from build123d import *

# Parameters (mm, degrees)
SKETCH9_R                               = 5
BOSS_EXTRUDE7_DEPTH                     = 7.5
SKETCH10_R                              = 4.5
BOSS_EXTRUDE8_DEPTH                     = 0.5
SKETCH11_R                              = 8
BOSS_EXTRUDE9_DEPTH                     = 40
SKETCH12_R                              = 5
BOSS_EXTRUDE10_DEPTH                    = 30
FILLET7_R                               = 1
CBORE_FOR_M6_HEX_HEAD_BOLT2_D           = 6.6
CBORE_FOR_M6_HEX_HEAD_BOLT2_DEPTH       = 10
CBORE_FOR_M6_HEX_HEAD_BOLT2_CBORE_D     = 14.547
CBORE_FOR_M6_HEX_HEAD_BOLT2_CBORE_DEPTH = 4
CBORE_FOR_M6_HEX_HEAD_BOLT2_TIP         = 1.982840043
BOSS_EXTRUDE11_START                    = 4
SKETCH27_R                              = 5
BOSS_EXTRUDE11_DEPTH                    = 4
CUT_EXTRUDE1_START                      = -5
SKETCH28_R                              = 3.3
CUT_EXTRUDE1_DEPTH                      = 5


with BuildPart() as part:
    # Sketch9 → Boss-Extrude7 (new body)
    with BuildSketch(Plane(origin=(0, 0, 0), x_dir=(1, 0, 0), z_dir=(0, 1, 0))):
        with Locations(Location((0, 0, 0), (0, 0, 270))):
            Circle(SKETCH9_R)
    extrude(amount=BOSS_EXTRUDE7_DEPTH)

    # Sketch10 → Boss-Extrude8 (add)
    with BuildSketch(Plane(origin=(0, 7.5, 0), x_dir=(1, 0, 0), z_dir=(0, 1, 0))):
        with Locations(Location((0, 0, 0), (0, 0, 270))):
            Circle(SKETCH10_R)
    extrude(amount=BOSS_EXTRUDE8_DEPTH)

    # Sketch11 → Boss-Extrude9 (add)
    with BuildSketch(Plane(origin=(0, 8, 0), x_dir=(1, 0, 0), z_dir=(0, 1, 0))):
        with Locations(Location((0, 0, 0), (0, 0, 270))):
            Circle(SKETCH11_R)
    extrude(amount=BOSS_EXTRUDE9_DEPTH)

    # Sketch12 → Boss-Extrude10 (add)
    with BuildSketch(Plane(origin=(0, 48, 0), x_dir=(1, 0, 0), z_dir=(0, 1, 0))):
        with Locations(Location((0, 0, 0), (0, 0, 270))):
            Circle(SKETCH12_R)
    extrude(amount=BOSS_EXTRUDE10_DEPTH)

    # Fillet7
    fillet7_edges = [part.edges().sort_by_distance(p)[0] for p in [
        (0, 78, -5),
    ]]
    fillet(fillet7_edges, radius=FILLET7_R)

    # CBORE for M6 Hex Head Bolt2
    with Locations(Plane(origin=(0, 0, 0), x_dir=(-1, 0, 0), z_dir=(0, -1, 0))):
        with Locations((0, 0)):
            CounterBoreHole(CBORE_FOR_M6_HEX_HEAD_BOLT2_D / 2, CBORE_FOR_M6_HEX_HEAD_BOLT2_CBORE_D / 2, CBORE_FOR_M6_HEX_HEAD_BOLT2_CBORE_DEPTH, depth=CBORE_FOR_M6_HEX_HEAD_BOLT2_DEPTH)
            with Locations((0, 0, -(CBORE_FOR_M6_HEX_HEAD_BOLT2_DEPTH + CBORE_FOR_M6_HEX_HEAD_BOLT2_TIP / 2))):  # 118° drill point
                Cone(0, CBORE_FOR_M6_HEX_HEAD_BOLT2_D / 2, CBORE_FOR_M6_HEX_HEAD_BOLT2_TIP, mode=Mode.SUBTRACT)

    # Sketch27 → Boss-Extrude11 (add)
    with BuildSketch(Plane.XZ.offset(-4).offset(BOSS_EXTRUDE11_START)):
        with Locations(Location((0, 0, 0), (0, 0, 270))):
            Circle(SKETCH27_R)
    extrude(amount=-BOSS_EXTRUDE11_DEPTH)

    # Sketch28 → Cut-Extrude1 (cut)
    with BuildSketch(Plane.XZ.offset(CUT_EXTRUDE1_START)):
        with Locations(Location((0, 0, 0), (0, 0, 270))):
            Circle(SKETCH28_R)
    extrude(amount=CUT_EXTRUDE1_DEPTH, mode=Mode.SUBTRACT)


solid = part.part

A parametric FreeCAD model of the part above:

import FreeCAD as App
import Part
import Sketcher


def edges_at(feature, points):
    """Names of the edges that pass closest to the given points."""
    edges = feature.Shape.Edges
    near = lambda p: min(range(len(edges)), key=lambda i: edges[i].distToShape(Part.Vertex(*p))[0])
    return sorted({f"Edge{near(p) + 1}" for p in points})

doc = App.newDocument("Part")
params = doc.addObject("Spreadsheet::Sheet", "Params")
for row, (alias, value) in enumerate([
    ("sketch1_diameter", "10 mm"),
    ("pad1_length", "7.5 mm"),
    ("sketch2_diameter", "9 mm"),
    ("pad2_length", "0.5 mm"),
    ("sketch3_diameter", "16 mm"),
    ("pad3_length", "40 mm"),
    ("sketch4_diameter", "10 mm"),
    ("pad4_length", "30 mm"),
    ("fillet_radius", "1 mm"),
    ("sketch5_diameter", "6.6 mm"),
    ("hole_diameter", "6.6 mm"),
    ("hole_depth", "10 mm"),
    ("hole_cbore_diameter", "14.547 mm"),
    ("hole_cbore_depth", "4 mm"),
    ("sketch6_diameter", "10 mm"),
    ("pad5_length", "4 mm"),
    ("sketch7_diameter", "6.6 mm"),
    ("pocket1_length", "5 mm"),
], start=1):
    params.set(f"A{row}", alias)
    params.set(f"B{row}", "=" + value)
    params.setAlias(f"B{row}", alias)

body = doc.addObject("PartDesign::Body", "Body")

# Sketch on XZ plane
sketch1 = doc.addObject("Sketcher::SketchObject", "Sketch")
body.addObject(sketch1)
sketch1.AttachmentSupport = (doc.XZ_Plane, [""])
sketch1.MapMode = "FlatFace"
sketch1.addGeometry(Part.Circle(App.Vector(0, 0, 0), App.Vector(0, 0, 1), 5), False)
sketch1.addConstraint([
    Sketcher.Constraint("Coincident", 0, 3, -1, 1),
    Sketcher.Constraint("Diameter", 0, 10.0),
])
sketch1.setExpression("Constraints[1]", "Params.sketch1_diameter")
pad1 = doc.addObject("PartDesign::Pad", "Pad")
body.addObject(pad1)
pad1.Profile = sketch1
pad1.setExpression("Length", "Params.pad1_length")
pad1.Reversed = True

# Sketch on XZ plane
sketch2 = doc.addObject("Sketcher::SketchObject", "Sketch001")
body.addObject(sketch2)
sketch2.AttachmentSupport = (doc.XZ_Plane, [""])
sketch2.MapMode = "FlatFace"
sketch2.AttachmentOffset = App.Placement(App.Vector(0, 0, -7.5), App.Rotation())
sketch2.addGeometry(Part.Circle(App.Vector(0, 0, 0), App.Vector(0, 0, 1), 4.5), False)
sketch2.addConstraint([
    Sketcher.Constraint("Coincident", 0, 3, -1, 1),
    Sketcher.Constraint("Diameter", 0, 9.0),
])
sketch2.setExpression("Constraints[1]", "Params.sketch2_diameter")
pad2 = doc.addObject("PartDesign::Pad", "Pad001")
body.addObject(pad2)
pad2.Profile = sketch2
pad2.setExpression("Length", "Params.pad2_length")
pad2.Reversed = True

# Sketch on XZ plane
sketch3 = doc.addObject("Sketcher::SketchObject", "Sketch002")
body.addObject(sketch3)
sketch3.AttachmentSupport = (doc.XZ_Plane, [""])
sketch3.MapMode = "FlatFace"
sketch3.AttachmentOffset = App.Placement(App.Vector(0, 0, -8), App.Rotation())
sketch3.addGeometry(Part.Circle(App.Vector(0, 0, 0), App.Vector(0, 0, 1), 8), False)
sketch3.addConstraint([
    Sketcher.Constraint("Coincident", 0, 3, -1, 1),
    Sketcher.Constraint("Diameter", 0, 16.0),
])
sketch3.setExpression("Constraints[1]", "Params.sketch3_diameter")
pad3 = doc.addObject("PartDesign::Pad", "Pad002")
body.addObject(pad3)
pad3.Profile = sketch3
pad3.setExpression("Length", "Params.pad3_length")
pad3.Reversed = True

# Sketch on XZ plane
sketch4 = doc.addObject("Sketcher::SketchObject", "Sketch003")
body.addObject(sketch4)
sketch4.AttachmentSupport = (doc.XZ_Plane, [""])
sketch4.MapMode = "FlatFace"
sketch4.AttachmentOffset = App.Placement(App.Vector(0, 0, -48), App.Rotation())
sketch4.addGeometry(Part.Circle(App.Vector(0, 0, 0), App.Vector(0, 0, 1), 5), False)
sketch4.addConstraint([
    Sketcher.Constraint("Coincident", 0, 3, -1, 1),
    Sketcher.Constraint("Diameter", 0, 10.0),
])
sketch4.setExpression("Constraints[1]", "Params.sketch4_diameter")
pad4 = doc.addObject("PartDesign::Pad", "Pad003")
body.addObject(pad4)
pad4.Profile = sketch4
pad4.setExpression("Length", "Params.pad4_length")
pad4.Reversed = True
doc.recompute()

fillet = doc.addObject("PartDesign::Fillet", "Fillet")
body.addObject(fillet)
fillet.Base = (pad4, edges_at(pad4, [(0, 78, -5)]))
fillet.setExpression("Radius", "Params.fillet_radius")

# Sketch on XZ plane
sketch5 = doc.addObject("Sketcher::SketchObject", "Sketch004")
body.addObject(sketch5)
sketch5.AttachmentSupport = (doc.XZ_Plane, [""])
sketch5.MapMode = "FlatFace"
sketch5.addGeometry(Part.Circle(App.Vector(0, 0, 0), App.Vector(0, 0, 1), 3.3), False)
sketch5.addConstraint([
    Sketcher.Constraint("Coincident", 0, 3, -1, 1),
    Sketcher.Constraint("Diameter", 0, 6.6),
])
sketch5.setExpression("Constraints[1]", "Params.sketch5_diameter")
doc.recompute()
hole = doc.addObject("PartDesign::Hole", "Hole")
body.addObject(hole)
hole.Profile = sketch5
hole.ThreadType = "None"
hole.setExpression("Diameter", "Params.hole_diameter")
hole.DepthType = "Dimension"
hole.setExpression("Depth", "Params.hole_depth")
hole.DrillPoint = "Angled"
hole.DrillPointAngle = 118
hole.HoleCutType = "Counterbore"
hole.setExpression("HoleCutDiameter", "Params.hole_cbore_diameter")
hole.setExpression("HoleCutDepth", "Params.hole_cbore_depth")

# Sketch on XZ plane
sketch6 = doc.addObject("Sketcher::SketchObject", "Sketch005")
body.addObject(sketch6)
sketch6.AttachmentSupport = (doc.XZ_Plane, [""])
sketch6.MapMode = "FlatFace"
sketch6.addGeometry(Part.Circle(App.Vector(0, 0, 0), App.Vector(0, 0, 1), 5), False)
sketch6.addConstraint([
    Sketcher.Constraint("Coincident", 0, 3, -1, 1),
    Sketcher.Constraint("Diameter", 0, 10.0),
])
sketch6.setExpression("Constraints[1]", "Params.sketch6_diameter")
pad5 = doc.addObject("PartDesign::Pad", "Pad004")
body.addObject(pad5)
pad5.Profile = sketch6
pad5.setExpression("Length", "Params.pad5_length")
pad5.Reversed = True

# Sketch on XZ plane
sketch7 = doc.addObject("Sketcher::SketchObject", "Sketch006")
body.addObject(sketch7)
sketch7.AttachmentSupport = (doc.XZ_Plane, [""])
sketch7.MapMode = "FlatFace"
sketch7.AttachmentOffset = App.Placement(App.Vector(0, 0, -5), App.Rotation())
sketch7.addGeometry(Part.Circle(App.Vector(0, 0, 0), App.Vector(0, 0, 1), 3.3), False)
sketch7.addConstraint([
    Sketcher.Constraint("Coincident", 0, 3, -1, 1),
    Sketcher.Constraint("Diameter", 0, 6.6),
])
sketch7.setExpression("Constraints[1]", "Params.sketch7_diameter")
pocket1 = doc.addObject("PartDesign::Pocket", "Pocket")
body.addObject(pocket1)
pocket1.Profile = sketch7
pocket1.setExpression("Length", "Params.pocket1_length")
pocket1.Reversed = True

doc.recompute()
